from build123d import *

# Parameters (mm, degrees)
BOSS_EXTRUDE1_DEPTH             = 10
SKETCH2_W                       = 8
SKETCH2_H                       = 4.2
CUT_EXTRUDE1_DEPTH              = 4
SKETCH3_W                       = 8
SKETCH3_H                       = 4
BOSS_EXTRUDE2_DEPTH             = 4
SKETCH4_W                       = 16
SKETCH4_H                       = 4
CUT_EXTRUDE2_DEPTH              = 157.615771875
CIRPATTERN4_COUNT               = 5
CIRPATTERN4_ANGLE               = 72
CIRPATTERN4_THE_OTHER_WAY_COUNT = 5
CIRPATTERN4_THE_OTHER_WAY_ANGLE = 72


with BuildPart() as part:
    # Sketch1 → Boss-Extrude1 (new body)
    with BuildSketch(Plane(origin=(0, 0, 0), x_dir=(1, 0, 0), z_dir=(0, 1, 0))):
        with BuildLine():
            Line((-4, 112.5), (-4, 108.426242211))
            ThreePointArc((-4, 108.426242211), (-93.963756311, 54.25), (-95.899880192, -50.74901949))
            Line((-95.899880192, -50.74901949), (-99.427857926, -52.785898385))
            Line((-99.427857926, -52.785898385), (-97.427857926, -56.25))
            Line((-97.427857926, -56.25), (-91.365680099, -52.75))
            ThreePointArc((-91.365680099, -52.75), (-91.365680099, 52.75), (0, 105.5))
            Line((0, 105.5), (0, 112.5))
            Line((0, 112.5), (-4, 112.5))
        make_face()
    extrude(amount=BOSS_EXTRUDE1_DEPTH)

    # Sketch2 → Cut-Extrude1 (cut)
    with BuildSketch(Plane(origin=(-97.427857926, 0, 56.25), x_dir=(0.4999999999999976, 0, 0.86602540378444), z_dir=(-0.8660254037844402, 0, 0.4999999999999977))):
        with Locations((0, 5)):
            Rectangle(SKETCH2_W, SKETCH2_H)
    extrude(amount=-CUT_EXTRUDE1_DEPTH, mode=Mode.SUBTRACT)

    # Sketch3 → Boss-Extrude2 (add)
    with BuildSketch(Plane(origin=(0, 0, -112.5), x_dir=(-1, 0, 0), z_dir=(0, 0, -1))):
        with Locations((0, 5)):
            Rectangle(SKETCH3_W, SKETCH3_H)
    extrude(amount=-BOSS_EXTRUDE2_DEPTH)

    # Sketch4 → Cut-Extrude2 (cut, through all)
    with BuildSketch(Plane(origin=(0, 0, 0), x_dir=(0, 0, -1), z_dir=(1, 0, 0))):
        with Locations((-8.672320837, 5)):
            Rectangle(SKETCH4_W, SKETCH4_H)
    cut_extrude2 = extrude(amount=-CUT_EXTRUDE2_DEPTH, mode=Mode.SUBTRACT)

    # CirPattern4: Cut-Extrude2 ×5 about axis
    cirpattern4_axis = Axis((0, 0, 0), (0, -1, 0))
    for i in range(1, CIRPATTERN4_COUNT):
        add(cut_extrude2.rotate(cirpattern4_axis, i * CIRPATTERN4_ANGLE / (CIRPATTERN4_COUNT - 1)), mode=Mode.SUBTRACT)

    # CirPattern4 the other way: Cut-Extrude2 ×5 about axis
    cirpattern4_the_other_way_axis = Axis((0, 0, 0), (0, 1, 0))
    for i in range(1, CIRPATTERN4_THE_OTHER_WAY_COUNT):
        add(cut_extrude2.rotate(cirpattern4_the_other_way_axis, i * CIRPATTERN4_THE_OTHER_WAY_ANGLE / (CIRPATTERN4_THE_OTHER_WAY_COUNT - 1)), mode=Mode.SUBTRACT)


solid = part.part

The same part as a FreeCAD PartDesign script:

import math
import FreeCAD as App
import Part
import Sketcher
from FreeCAD import Vector
Q = App.Units.Quantity

doc = App.newDocument("Part")
body = doc.addObject("PartDesign::Body", "Body")

# Sketch on XZ plane
sketch1 = body.newObject("Sketcher::SketchObject", "Sketch")
sketch1.AttachmentSupport = (doc.getObject("XZ_Plane"), [""])
sketch1.MapMode = "FlatFace"
sketch1.addGeometry([
    Part.LineSegment(Vector(-4, -112.5, 0), Vector(-4, -108.4, 0)),  # 0
    Part.ArcOfCircle(Part.Circle(Vector(0, 0, 0), Vector(0, 0, 1), 108.5), math.radians(152), math.radians(268)),  # 1
    Part.LineSegment(Vector(-95.9, 50.7, 0), Vector(-99.4, 52.8, 0)),  # 2
    Part.LineSegment(Vector(-99.4, 52.8, 0), Vector(-97.4, 56.2, 0)),  # 3
    Part.LineSegment(Vector(-97.4, 56.2, 0), Vector(-91.4, 52.8, 0)),  # 4
    Part.ArcOfCircle(Part.Circle(Vector(0, 0, 0), Vector(0, 0, 1), 105.5), math.radians(150), math.radians(270)),  # 5
    Part.LineSegment(Vector(0, -105.5, 0), Vector(0, -112.5, 0)),  # 6
    Part.LineSegment(Vector(0, -112.5, 0), Vector(-4, -112.5, 0)),  # 7
], False)
sketch1.addConstraint([
    Sketcher.Constraint("Coincident", 0, 2, 1, 2),
    Sketcher.Constraint("Coincident", 1, 1, 2, 1),
    Sketcher.Constraint("Coincident", 2, 2, 3, 1),
    Sketcher.Constraint("Coincident", 3, 2, 4, 1),
    Sketcher.Constraint("Coincident", 4, 2, 5, 1),
    Sketcher.Constraint("Coincident", 5, 2, 6, 1),
    Sketcher.Constraint("Coincident", 6, 2, 7, 1),
    Sketcher.Constraint("Coincident", 7, 2, 0, 1),
    Sketcher.Constraint("Vertical", 0),
    Sketcher.Constraint("Vertical", 6),
    Sketcher.Constraint("Horizontal", 7),
    Sketcher.Constraint("Coincident", 1, 3, -1, 1),
    Sketcher.Constraint("Coincident", 5, 3, -1, 1),
    Sketcher.Constraint("PointOnObject", 5, 2, -2),
    Sketcher.Constraint("Perpendicular", 2, 3),
    Sketcher.Constraint("Perpendicular", 3, 4),
    Sketcher.Constraint("Radius", 1, 108.5),
    Sketcher.Constraint("Radius", 5, 105.5),
    Sketcher.Constraint("DistanceX", 7, 2, 7, 1, 4.0),
    Sketcher.Constraint("DistanceY", 6, 2, 6, 1, 7.0),
    Sketcher.Constraint("Angle", 2, Q("150 deg")),
    Sketcher.Constraint("Distance", 3, 4.0),
    Sketcher.Constraint("Distance", 4, 7.0),
    Sketcher.Constraint("DistanceY", -1, 1, 3, 2, 56.25),
])
pad1 = body.newObject("PartDesign::Pad", "Pad")
pad1.Profile = sketch1
pad1.Length = 10
pad1.Reversed = True

# Sketch on an angled plane
sketch2 = body.newObject("Sketcher::SketchObject", "Sketch001")
sketch2.Placement = App.Placement(Vector(-97.427858, 0, 56.25), App.Rotation(Vector(0.5, 0, 0.866025404), Vector(0, 1, 0), Vector(-0.866025404, 0, 0.5), "ZXY"))
sketch2.addGeometry([
    Part.LineSegment(Vector(-4, 7.1, 0), Vector(-4, 2.9, 0)),
    Part.LineSegment(Vector(-4, 2.9, 0), Vector(4, 2.9, 0)),
    Part.LineSegment(Vector(4, 2.9, 0), Vector(4, 7.1, 0)),
    Part.LineSegment(Vector(4, 7.1, 0), Vector(-4, 7.1, 0)),
], False)
sketch2.addConstraint([
    Sketcher.Constraint("Coincident", 0, 2, 1, 1),
    Sketcher.Constraint("Coincident", 1, 2, 2, 1),
    Sketcher.Constraint("Coincident", 2, 2, 3, 1),
    Sketcher.Constraint("Coincident", 3, 2, 0, 1),
    Sketcher.Constraint("Vertical", 0),
    Sketcher.Constraint("Horizontal", 1),
    Sketcher.Constraint("Vertical", 2),
    Sketcher.Constraint("Horizontal", 3),
    Sketcher.Constraint("DistanceX", 1, 1, 1, 2, 8.0),
    Sketcher.Constraint("DistanceY", 0, 2, 0, 1, 4.2),
    Sketcher.Constraint("DistanceX", 0, 2, -1, 1, 4.0),
    Sketcher.Constraint("DistanceY", -1, 1, 0, 2, 2.9),
])
pocket1 = body.newObject("PartDesign::Pocket", "Pocket")
pocket1.Profile = sketch2
pocket1.Length = 4

# Sketch on XY plane
sketch3 = body.newObject("Sketcher::SketchObject", "Sketch002")
sketch3.AttachmentSupport = (doc.getObject("XY_Plane"), [""])
sketch3.MapMode = "FlatFace"
sketch3.AttachmentOffset = App.Placement(Vector(0, 0, -112.5), App.Rotation())
sketch3.addGeometry([
    Part.LineSegment(Vector(4, 7, 0), Vector(4, 3, 0)),
    Part.LineSegment(Vector(4, 3, 0), Vector(-4, 3, 0)),
    Part.LineSegment(Vector(-4, 3, 0), Vector(-4, 7, 0)),
    Part.LineSegment(Vector(-4, 7, 0), Vector(4, 7, 0)),
], False)
sketch3.addConstraint([
    Sketcher.Constraint("Coincident", 0, 2, 1, 1),
    Sketcher.Constraint("Coincident", 1, 2, 2, 1),
    Sketcher.Constraint("Coincident", 2, 2, 3, 1),
    Sketcher.Constraint("Coincident", 3, 2, 0, 1),
    Sketcher.Constraint("Vertical", 0),
    Sketcher.Constraint("Horizontal", 1),
    Sketcher.Constraint("Vertical", 2),
    Sketcher.Constraint("Horizontal", 3),
    Sketcher.Constraint("DistanceX", 1, 2, 1, 1, 8.0),
    Sketcher.Constraint("DistanceY", 0, 2, 0, 1, 4.0),
    Sketcher.Constraint("DistanceX", -1, 1, 0, 2, 4.0),
    Sketcher.Constraint("DistanceY", -1, 1, 0, 2, 3.0),
])
pad2 = body.newObject("PartDesign::Pad", "Pad001")
pad2.Profile = sketch3
pad2.Length = 4

# Sketch on YZ plane
sketch4 = body.newObject("Sketcher::SketchObject", "Sketch003")
sketch4.AttachmentSupport = (doc.getObject("YZ_Plane"), [""])
sketch4.MapMode = "FlatFace"
sketch4.addGeometry([
    Part.LineSegment(Vector(7, 16.7, 0), Vector(3, 16.7, 0)),
    Part.LineSegment(Vector(3, 16.7, 0), Vector(3, 0.7, 0)),
    Part.LineSegment(Vector(3, 0.7, 0), Vector(7, 0.7, 0)),
    Part.LineSegment(Vector(7, 0.7, 0), Vector(7, 16.7, 0)),
], False)
sketch4.addConstraint([
    Sketcher.Constraint("Coincident", 0, 2, 1, 1),
    Sketcher.Constraint("Coincident", 1, 2, 2, 1),
    Sketcher.Constraint("Coincident", 2, 2, 3, 1),
    Sketcher.Constraint("Coincident", 3, 2, 0, 1),
    Sketcher.Constraint("Horizontal", 0),
    Sketcher.Constraint("Vertical", 1),
    Sketcher.Constraint("Horizontal", 2),
    Sketcher.Constraint("Vertical", 3),
    Sketcher.Constraint("DistanceX", 0, 2, 0, 1, 4.0),
    Sketcher.Constraint("DistanceY", 1, 2, 1, 1, 16.0),
    Sketcher.Constraint("DistanceX", -1, 1, 0, 2, 3.0),
    Sketcher.Constraint("DistanceY", -1, 1, 0, 2, 16.672321),
])
pocket2 = body.newObject("PartDesign::Pocket", "Pocket001")
pocket2.Profile = sketch4
pocket2.Type = "ThroughAll"
doc.recompute()

polarpattern = body.newObject("PartDesign::PolarPattern", "PolarPattern")
polarpattern.Originals = [pocket2]
polarpattern.Axis = (doc.getObject("Y_Axis"), [""])
polarpattern.Angle = 72
polarpattern.Occurrences = 5
polarpattern.Reversed = True
body.Tip = polarpattern
doc.recompute()

polarpattern2 = body.newObject("PartDesign::PolarPattern", "PolarPattern001")
polarpattern2.Originals = [pocket2]
polarpattern2.Axis = (doc.getObject("Y_Axis"), [""])
polarpattern2.Angle = 72
polarpattern2.Occurrences = 5
body.Tip = polarpattern2

doc.recompute()
